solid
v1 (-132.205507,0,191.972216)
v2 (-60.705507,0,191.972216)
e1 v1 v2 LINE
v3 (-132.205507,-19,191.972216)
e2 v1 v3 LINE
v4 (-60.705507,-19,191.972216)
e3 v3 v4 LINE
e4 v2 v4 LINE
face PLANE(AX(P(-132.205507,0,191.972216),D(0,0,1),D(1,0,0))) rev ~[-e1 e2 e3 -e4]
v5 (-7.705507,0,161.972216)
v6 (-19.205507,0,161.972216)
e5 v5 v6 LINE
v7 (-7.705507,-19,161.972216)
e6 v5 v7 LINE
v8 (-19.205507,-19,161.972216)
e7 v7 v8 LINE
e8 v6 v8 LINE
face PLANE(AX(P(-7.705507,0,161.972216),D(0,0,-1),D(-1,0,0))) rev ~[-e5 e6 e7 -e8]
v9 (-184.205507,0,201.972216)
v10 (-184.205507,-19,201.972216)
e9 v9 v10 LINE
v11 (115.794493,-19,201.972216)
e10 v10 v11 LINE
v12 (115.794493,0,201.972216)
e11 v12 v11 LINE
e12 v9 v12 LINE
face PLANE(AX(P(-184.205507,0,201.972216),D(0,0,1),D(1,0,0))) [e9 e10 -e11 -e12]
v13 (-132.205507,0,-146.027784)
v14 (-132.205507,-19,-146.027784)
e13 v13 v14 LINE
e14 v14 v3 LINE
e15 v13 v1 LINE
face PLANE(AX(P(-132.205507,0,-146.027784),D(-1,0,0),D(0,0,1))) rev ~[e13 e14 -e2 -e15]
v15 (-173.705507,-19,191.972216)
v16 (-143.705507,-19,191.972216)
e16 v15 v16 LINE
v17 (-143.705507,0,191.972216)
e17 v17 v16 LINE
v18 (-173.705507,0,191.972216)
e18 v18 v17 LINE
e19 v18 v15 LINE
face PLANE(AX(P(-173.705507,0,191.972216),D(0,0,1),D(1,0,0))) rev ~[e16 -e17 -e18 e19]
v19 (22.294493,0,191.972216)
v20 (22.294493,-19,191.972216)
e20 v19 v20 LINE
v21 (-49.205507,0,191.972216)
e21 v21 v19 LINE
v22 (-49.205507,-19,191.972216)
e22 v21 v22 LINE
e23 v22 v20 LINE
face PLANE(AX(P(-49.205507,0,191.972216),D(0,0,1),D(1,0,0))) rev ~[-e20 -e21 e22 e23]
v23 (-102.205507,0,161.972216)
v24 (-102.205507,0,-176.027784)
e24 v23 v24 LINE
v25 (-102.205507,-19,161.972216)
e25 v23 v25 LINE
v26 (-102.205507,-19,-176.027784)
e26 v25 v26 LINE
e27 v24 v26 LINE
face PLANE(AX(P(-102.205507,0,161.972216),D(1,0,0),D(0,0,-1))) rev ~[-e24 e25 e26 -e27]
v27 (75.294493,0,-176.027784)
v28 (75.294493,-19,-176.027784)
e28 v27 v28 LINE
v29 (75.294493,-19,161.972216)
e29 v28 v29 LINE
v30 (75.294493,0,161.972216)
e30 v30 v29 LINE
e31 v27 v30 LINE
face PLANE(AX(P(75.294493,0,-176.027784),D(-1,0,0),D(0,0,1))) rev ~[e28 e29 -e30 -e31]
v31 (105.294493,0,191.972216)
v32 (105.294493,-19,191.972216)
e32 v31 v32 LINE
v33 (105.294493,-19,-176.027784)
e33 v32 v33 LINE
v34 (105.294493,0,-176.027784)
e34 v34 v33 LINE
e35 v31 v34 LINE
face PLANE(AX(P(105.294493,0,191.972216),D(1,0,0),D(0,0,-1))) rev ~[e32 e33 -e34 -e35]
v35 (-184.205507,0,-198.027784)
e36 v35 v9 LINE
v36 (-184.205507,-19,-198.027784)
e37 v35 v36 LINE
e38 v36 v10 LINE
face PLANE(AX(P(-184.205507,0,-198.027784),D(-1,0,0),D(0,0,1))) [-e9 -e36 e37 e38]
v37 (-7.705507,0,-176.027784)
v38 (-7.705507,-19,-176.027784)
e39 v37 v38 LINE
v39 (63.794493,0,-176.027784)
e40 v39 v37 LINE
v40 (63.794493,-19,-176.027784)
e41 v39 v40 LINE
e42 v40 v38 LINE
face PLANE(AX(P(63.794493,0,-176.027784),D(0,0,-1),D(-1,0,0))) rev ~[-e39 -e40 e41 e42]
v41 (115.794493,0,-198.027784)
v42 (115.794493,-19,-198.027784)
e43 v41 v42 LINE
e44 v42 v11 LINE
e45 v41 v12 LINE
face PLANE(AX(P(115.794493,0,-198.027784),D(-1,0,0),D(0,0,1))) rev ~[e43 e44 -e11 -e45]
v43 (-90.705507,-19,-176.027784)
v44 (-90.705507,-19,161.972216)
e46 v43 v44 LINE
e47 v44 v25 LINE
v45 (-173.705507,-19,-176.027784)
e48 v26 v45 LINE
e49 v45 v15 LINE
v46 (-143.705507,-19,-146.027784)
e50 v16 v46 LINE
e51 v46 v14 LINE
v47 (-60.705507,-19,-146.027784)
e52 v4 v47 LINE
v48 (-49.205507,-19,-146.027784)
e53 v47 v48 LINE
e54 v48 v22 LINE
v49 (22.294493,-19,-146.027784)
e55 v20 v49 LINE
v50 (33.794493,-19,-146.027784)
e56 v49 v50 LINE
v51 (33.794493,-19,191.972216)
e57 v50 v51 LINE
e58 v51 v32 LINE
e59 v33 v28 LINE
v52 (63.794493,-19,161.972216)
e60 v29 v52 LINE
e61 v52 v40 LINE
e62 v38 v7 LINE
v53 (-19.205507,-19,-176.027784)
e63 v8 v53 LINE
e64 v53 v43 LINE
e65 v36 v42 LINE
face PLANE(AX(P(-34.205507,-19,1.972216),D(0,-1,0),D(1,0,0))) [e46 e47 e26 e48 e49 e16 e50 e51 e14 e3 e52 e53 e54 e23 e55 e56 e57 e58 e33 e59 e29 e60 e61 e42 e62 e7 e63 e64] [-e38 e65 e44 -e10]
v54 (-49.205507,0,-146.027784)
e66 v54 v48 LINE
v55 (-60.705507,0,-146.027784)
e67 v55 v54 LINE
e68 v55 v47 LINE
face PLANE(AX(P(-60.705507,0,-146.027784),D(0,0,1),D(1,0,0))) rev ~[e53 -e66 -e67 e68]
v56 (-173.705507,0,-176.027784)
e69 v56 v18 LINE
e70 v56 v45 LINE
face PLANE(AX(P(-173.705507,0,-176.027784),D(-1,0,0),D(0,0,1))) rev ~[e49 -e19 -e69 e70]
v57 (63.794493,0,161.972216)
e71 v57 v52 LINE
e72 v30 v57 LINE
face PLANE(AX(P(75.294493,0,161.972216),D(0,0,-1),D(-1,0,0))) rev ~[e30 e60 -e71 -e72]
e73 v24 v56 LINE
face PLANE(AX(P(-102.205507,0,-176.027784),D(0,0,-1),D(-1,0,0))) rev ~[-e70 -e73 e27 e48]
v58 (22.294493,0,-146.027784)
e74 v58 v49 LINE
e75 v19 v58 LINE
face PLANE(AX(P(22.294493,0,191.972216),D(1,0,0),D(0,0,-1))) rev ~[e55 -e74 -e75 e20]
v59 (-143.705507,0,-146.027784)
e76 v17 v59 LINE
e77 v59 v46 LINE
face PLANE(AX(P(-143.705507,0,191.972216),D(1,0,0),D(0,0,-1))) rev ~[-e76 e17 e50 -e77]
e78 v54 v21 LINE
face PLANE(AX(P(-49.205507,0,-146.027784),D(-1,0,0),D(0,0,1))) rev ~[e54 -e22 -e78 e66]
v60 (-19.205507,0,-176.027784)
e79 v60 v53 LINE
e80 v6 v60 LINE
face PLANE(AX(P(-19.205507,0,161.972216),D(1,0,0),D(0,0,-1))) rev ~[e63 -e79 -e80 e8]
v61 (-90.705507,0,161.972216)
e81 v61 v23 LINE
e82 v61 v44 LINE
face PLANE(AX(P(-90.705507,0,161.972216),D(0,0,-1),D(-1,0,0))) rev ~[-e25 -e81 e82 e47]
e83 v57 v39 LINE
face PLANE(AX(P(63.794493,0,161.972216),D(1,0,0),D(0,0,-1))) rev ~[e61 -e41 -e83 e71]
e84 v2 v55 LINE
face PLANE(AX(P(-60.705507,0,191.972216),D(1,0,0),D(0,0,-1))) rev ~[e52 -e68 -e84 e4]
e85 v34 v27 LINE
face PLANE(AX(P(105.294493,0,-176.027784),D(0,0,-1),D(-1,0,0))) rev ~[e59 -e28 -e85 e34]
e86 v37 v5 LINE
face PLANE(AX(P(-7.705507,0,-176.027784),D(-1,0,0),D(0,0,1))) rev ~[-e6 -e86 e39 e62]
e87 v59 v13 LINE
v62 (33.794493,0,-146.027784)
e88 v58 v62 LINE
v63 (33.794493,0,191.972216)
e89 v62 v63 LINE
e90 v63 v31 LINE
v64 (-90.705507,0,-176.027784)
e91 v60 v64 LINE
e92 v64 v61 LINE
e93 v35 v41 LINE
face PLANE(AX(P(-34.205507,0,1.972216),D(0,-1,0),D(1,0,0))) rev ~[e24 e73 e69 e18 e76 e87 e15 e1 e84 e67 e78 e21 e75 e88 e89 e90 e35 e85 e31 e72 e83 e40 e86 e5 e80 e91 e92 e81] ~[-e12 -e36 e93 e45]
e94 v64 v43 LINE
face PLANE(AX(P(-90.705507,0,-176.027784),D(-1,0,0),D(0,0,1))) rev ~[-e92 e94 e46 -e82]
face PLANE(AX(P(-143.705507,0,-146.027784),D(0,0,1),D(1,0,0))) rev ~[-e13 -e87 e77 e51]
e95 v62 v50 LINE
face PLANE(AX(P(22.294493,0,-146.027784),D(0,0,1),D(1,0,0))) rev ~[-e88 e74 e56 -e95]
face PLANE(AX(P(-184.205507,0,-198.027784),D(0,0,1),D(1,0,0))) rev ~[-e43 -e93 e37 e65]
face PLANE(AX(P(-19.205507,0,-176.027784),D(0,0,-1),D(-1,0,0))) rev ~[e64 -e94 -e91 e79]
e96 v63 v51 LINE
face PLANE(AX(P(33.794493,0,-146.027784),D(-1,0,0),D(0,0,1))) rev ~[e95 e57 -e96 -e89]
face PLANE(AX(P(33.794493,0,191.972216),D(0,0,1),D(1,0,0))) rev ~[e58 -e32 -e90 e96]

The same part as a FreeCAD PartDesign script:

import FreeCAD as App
import Part
import Sketcher


def add_polygon(sketch, points):
    """Adds a closed chain of lines whose ends are joined by coincident constraints."""
    first, n = sketch.GeometryCount, len(points)
    for a, b in zip(points, points[1:] + points[:1]):
        sketch.addGeometry(Part.LineSegment(App.Vector(*a, 0), App.Vector(*b, 0)), False)
    for i in range(n):
        sketch.addConstraint(Sketcher.Constraint("Coincident", first + i, 2, first + (i + 1) % n, 1))

doc = App.newDocument("Part")
body = doc.addObject("PartDesign::Body", "Body")

# Sketch on XZ plane
sketch1 = body.newObject("Sketcher::SketchObject", "Sketch")
sketch1.AttachmentSupport = (doc.getObject("XZ_Plane"), [""])
sketch1.MapMode = "FlatFace"
add_polygon(sketch1, [(-184, 202), (-184, -198), (116, -198), (116, 202)])  # lines 0-3
sketch1.addConstraint([
    Sketcher.Constraint("Vertical", 0),
    Sketcher.Constraint("Horizontal", 1),
    Sketcher.Constraint("Vertical", 2),
    Sketcher.Constraint("Horizontal", 3),
    Sketcher.Constraint("DistanceX", 1, 1, 1, 2, 300.0),
    Sketcher.Constraint("DistanceY", 0, 2, 0, 1, 400.0),
    Sketcher.Constraint("DistanceX", 0, 2, -1, 1, 184.205507),
    Sketcher.Constraint("DistanceY", 0, 2, -1, 1, 198.027784),
])
pad1 = body.newObject("PartDesign::Pad", "Pad")
pad1.Profile = sketch1
pad1.Length = 19

# Sketch on XZ plane
sketch2 = body.newObject("Sketcher::SketchObject", "Sketch001")
sketch2.AttachmentSupport = (doc.getObject("XZ_Plane"), [""])
sketch2.MapMode = "FlatFace"
add_polygon(sketch2, [(105, 192), (105, -176), (75, -176), (75, 162), (64, 162), (64, -176), (-8, -176), (-8, 162), (-19, 162), (-19, -176), (-91, -176), (-91, 162), (-102, 162), (-102, -176), (-174, -176), (-174, 192), (-144, 192), (-144, -146), (-132, -146), (-132, 192), (-61, 192), (-61, -146), (-49, -146), (-49, 192), (22, 192), (22, -146), (34, -146), (34, 192)])  # lines 0-27
sketch2.addConstraint([
    Sketcher.Constraint("Vertical", 0),
    Sketcher.Constraint("Horizontal", 1),
    Sketcher.Constraint("Vertical", 2),
    Sketcher.Constraint("Horizontal", 3),
    Sketcher.Constraint("Vertical", 4),
    Sketcher.Constraint("Horizontal", 5),
    Sketcher.Constraint("Vertical", 6),
    Sketcher.Constraint("Horizontal", 7),
    Sketcher.Constraint("Vertical", 8),
    Sketcher.Constraint("Horizontal", 9),
    Sketcher.Constraint("Vertical", 10),
    Sketcher.Constraint("Horizontal", 11),
    Sketcher.Constraint("Vertical", 12),
    Sketcher.Constraint("Horizontal", 13),
    Sketcher.Constraint("Vertical", 14),
    Sketcher.Constraint("Horizontal", 15),
    Sketcher.Constraint("Vertical", 16),
    Sketcher.Constraint("Horizontal", 17),
    Sketcher.Constraint("Vertical", 18),
    Sketcher.Constraint("Horizontal", 19),
    Sketcher.Constraint("Vertical", 20),
    Sketcher.Constraint("Horizontal", 21),
    Sketcher.Constraint("Vertical", 22),
    Sketcher.Constraint("Horizontal", 23),
    Sketcher.Constraint("Vertical", 24),
    Sketcher.Constraint("Horizontal", 25),
    Sketcher.Constraint("Vertical", 26),
    Sketcher.Constraint("Horizontal", 27),
    Sketcher.Constraint("Horizontal", 1, 2, 4, 2),
    Sketcher.Constraint("Horizontal", 3, 2, 6, 2),
    Sketcher.Constraint("Horizontal", 5, 2, 8, 2),
    Sketcher.Constraint("Horizontal", 7, 2, 10, 2),
    Sketcher.Constraint("Horizontal", 9, 2, 12, 2),
    Sketcher.Constraint("Horizontal", 15, 2, 18, 2),
    Sketcher.Constraint("Horizontal", 17, 2, 20, 2),
    Sketcher.Constraint("Horizontal", 19, 2, 22, 2),
    Sketcher.Constraint("Horizontal", 21, 2, 24, 2),
    Sketcher.Constraint("Horizontal", 23, 2, 26, 2),
    Sketcher.Constraint("Equal", 3, 7),
    Sketcher.Constraint("Equal", 5, 9),
    Sketcher.Constraint("Equal", 7, 11),
    Sketcher.Constraint("Equal", 9, 13),
    Sketcher.Constraint("Equal", 1, 15),
    Sketcher.Constraint("Equal", 11, 17),
    Sketcher.Constraint("Equal", 13, 19),
    Sketcher.Constraint("Equal", 17, 21),
    Sketcher.Constraint("Equal", 19, 23),
    Sketcher.Constraint("Equal", 21, 25),
    Sketcher.Constraint("Equal", 12, 16),
    Sketcher.Constraint("DistanceX", 1, 2, 1, 1, 30.0),
    Sketcher.Constraint("DistanceY", 0, 2, 0, 1, 368.0),
    Sketcher.Constraint("DistanceY", 2, 1, 2, 2, 338.0),
    Sketcher.Constraint("DistanceX", 3, 2, 3, 1, 11.5),
    Sketcher.Constraint("DistanceX", 5, 2, 5, 1, 71.5),
    Sketcher.Constraint("DistanceX", -1, 1, 0, 2, 105.294493),
    Sketcher.Constraint("DistanceY", 0, 2, -1, 1, 176.027784),
])
pocket1 = body.newObject("PartDesign::Pocket", "Pocket")
pocket1.Profile = sketch2
pocket1.Length = 19
pocket1.Reversed = True

doc.recompute()
